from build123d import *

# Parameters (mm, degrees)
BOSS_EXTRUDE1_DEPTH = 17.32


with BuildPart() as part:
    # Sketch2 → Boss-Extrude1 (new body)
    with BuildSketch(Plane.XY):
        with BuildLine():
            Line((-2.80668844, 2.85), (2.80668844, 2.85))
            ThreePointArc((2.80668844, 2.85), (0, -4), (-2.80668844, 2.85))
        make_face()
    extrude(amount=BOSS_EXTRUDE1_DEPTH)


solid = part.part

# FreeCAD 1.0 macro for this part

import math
import FreeCAD as App
import Part
import Sketcher
from FreeCAD import Vector
Q = App.Units.Quantity

doc = App.newDocument("Part")
body = doc.addObject("PartDesign::Body", "Body")

# Sketch on XY plane
sketch1 = body.newObject("Sketcher::SketchObject", "Sketch")
sketch1.AttachmentSupport = (doc.getObject("XY_Plane"), [""])
sketch1.MapMode = "FlatFace"
sketch1.addGeometry([
    Part.LineSegment(Vector(2.8, 2.9, 0), Vector(-2.8, 2.9, 0)),
    Part.ArcOfCircle(Part.Circle(Vector(0, 0, 0), Vector(0, 0, 1), 4), math.radians(135), math.radians(405)),
], False)
sketch1.addConstraint([
    Sketcher.Constraint("Coincident", 0, 1, 1, 2),
    Sketcher.Constraint("Coincident", 1, 1, 0, 2),
    Sketcher.Constraint("Horizontal", 0),
    Sketcher.Constraint("Coincident", 1, 3, -1, 1),
    Sketcher.Constraint("Radius", 1, Q("4 mm")),
    Sketcher.Constraint("DistanceY", -1, 1, 0, 1, Q("2.85 mm")),
])
pad1 = body.newObject("PartDesign::Pad", "Pad")
pad1.Profile = sketch1
pad1.Length = 17.32

doc.recompute()
